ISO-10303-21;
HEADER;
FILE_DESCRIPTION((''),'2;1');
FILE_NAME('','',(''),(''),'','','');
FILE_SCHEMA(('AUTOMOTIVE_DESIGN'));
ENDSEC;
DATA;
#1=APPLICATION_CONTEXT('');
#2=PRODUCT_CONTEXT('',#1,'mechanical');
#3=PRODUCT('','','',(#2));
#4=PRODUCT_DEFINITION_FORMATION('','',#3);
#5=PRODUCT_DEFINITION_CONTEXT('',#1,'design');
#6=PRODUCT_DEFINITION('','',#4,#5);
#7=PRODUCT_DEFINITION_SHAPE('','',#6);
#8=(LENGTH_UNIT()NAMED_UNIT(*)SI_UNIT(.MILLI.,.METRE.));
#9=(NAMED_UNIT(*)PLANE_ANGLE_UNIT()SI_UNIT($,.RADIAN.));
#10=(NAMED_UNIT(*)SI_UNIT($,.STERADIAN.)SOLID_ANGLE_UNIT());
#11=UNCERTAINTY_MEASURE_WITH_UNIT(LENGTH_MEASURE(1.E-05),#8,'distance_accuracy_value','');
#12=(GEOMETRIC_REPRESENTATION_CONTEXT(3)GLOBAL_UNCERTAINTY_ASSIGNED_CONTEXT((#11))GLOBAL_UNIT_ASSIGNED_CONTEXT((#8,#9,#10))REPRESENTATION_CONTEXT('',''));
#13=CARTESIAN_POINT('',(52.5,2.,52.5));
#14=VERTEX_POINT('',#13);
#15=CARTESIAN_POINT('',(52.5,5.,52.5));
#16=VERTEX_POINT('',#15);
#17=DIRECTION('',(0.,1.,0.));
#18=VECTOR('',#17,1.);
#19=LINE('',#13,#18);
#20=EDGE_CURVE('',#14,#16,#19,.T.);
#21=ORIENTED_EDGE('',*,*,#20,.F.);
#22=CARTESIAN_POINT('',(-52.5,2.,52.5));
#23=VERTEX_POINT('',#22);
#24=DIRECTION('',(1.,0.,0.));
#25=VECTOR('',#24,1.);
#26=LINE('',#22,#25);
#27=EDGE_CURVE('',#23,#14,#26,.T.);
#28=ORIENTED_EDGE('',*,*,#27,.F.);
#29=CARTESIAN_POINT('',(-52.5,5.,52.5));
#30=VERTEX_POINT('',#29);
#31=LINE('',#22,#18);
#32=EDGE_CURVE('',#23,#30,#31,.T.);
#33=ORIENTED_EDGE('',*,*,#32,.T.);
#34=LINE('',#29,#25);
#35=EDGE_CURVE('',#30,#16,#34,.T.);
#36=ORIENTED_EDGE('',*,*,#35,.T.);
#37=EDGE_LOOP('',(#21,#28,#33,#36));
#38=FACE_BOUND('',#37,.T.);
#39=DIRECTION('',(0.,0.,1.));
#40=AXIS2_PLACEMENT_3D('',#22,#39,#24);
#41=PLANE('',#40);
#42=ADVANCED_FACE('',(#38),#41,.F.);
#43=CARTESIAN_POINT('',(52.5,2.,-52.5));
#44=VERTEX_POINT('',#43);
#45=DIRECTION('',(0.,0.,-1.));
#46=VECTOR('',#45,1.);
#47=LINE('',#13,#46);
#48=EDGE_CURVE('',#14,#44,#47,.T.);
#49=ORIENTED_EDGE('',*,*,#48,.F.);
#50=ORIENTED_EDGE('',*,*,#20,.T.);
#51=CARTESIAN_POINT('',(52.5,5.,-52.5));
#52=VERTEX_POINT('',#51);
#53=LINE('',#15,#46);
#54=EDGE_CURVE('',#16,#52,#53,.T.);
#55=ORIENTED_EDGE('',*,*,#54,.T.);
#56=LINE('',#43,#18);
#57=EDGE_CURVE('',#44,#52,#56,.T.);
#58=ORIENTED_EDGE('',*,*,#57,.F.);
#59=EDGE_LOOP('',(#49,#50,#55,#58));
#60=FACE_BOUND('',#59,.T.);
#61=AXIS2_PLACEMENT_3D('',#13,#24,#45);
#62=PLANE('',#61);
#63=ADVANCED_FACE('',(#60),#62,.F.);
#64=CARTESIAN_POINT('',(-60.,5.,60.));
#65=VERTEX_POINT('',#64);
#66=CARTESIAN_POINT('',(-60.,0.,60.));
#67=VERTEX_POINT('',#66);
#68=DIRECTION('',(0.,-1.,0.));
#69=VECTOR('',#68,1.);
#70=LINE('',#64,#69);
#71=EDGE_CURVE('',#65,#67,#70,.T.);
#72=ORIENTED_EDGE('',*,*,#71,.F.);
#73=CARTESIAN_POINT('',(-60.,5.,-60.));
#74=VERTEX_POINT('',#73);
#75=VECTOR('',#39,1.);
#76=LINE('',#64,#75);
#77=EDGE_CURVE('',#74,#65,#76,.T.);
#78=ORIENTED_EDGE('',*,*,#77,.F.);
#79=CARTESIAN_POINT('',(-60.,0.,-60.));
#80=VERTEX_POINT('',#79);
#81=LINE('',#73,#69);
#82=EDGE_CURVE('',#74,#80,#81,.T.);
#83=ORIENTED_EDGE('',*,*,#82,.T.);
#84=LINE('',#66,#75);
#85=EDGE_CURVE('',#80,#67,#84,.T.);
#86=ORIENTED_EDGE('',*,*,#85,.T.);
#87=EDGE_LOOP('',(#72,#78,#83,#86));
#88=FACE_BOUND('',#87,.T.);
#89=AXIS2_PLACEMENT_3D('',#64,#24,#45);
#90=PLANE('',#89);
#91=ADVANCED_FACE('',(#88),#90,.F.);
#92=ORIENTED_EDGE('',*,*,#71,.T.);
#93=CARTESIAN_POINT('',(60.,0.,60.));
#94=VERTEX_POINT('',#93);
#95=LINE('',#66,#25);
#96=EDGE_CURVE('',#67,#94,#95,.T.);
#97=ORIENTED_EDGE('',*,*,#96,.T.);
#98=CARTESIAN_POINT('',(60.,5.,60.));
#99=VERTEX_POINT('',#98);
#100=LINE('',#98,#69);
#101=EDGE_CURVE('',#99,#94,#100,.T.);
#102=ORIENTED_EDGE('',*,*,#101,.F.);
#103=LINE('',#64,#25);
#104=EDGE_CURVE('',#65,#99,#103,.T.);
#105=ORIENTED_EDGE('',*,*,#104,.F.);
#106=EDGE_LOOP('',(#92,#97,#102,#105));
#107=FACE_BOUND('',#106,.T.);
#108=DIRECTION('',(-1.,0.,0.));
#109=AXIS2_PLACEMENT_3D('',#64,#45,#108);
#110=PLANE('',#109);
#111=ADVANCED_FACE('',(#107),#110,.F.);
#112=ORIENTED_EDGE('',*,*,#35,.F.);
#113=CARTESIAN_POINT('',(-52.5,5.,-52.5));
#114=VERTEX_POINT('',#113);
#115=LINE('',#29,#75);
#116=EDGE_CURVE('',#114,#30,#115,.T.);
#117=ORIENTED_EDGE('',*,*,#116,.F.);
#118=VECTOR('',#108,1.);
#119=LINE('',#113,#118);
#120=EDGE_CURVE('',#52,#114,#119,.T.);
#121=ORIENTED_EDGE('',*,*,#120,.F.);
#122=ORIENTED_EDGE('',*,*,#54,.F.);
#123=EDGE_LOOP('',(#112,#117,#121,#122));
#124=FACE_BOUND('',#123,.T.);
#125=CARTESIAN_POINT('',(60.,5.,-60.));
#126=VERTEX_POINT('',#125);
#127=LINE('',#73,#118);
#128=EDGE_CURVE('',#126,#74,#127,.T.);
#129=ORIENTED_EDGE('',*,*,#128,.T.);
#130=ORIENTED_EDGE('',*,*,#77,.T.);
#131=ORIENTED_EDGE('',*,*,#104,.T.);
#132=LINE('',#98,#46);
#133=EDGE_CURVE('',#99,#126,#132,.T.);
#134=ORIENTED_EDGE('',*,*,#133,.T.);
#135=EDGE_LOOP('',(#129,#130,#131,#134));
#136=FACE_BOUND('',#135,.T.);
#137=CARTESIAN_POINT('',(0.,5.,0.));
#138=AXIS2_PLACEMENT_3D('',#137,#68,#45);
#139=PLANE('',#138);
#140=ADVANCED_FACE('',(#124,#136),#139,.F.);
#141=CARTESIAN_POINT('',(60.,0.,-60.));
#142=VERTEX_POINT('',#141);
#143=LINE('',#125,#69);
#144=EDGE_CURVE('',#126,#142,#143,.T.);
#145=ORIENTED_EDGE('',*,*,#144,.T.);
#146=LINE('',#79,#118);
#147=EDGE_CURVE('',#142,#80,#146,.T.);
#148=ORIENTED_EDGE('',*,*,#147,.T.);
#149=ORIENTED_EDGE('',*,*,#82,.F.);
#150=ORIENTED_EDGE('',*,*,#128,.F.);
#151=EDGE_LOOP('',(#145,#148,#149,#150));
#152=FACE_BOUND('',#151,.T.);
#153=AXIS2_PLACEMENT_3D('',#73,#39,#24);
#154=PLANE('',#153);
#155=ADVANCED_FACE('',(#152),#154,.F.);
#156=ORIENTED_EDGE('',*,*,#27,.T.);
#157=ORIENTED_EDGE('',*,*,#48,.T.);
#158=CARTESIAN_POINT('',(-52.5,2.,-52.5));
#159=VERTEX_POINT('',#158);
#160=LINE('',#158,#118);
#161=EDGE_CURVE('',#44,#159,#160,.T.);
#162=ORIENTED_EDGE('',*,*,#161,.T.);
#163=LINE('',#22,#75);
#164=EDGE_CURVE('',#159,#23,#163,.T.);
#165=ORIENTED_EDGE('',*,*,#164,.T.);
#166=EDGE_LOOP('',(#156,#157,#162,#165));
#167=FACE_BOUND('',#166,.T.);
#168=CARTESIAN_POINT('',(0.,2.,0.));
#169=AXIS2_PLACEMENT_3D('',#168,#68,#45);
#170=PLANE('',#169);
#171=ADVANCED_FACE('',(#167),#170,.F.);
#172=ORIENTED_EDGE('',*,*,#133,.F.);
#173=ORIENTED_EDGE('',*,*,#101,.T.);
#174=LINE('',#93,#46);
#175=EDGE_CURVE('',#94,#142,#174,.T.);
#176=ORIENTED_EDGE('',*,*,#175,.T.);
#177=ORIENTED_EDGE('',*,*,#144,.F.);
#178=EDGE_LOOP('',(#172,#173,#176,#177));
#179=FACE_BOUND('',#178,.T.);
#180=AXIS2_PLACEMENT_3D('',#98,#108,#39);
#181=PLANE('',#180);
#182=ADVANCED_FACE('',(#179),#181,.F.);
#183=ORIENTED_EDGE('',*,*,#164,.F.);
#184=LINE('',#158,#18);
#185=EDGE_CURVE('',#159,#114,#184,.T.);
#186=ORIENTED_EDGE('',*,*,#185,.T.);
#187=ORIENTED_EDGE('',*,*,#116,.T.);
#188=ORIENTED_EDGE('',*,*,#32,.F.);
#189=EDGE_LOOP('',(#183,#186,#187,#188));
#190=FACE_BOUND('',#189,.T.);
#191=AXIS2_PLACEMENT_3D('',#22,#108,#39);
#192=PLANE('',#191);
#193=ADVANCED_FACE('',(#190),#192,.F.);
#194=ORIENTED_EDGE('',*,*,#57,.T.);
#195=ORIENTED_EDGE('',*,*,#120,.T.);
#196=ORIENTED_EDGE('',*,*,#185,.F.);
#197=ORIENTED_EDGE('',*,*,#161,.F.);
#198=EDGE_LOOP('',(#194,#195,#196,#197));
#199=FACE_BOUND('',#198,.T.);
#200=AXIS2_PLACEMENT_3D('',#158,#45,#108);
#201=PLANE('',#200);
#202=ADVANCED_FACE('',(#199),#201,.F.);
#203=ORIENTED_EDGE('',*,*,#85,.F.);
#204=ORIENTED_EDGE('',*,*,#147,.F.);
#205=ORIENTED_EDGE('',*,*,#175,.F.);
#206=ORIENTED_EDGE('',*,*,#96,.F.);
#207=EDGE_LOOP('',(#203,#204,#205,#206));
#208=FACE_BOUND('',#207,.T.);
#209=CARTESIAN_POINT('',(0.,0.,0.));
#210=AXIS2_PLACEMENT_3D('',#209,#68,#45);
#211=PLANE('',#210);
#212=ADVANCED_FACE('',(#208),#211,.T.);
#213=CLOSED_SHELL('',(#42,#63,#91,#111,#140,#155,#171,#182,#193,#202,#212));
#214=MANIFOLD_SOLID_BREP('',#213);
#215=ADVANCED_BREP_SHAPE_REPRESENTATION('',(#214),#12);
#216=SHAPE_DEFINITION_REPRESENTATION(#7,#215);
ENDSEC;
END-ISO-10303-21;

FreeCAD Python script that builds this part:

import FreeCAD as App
import Part
import Sketcher
from FreeCAD import Vector


def add_polygon(sketch, points):
    """Adds a closed chain of lines whose ends are joined by coincident constraints."""
    first, n = sketch.GeometryCount, len(points)
    for a, b in zip(points, points[1:] + points[:1]):
        sketch.addGeometry(Part.LineSegment(App.Vector(*a, 0), App.Vector(*b, 0)), False)
    for i in range(n):
        sketch.addConstraint(Sketcher.Constraint("Coincident", first + i, 2, first + (i + 1) % n, 1))

doc = App.newDocument("Part")
body = doc.addObject("PartDesign::Body", "Body")

sketch1 = doc.addObject("Sketcher::SketchObject", "Sketch")
body.addObject(sketch1)
sketch1.AttachmentSupport = (doc.XZ_Plane, [""])
sketch1.MapMode = "FlatFace"
add_polygon(sketch1, [(-60, -60), (-60, 60), (60, 60), (60, -60)])
sketch1.addConstraint([
    Sketcher.Constraint("Vertical", 0),
    Sketcher.Constraint("Horizontal", 1),
    Sketcher.Constraint("Vertical", 2),
    Sketcher.Constraint("Horizontal", 3),
    Sketcher.Constraint("Symmetric", 0, 2, 2, 2, -1, 1),
    Sketcher.Constraint("Equal", 3, 0),
    Sketcher.Constraint("DistanceX", 1, 1, 1, 2, 120.0),
])
pad1 = doc.addObject("PartDesign::Pad", "Pad")
body.addObject(pad1)
pad1.Profile = sketch1
pad1.Length = 5
pad1.Reversed = True

sketch2 = doc.addObject("Sketcher::SketchObject", "Sketch001")
body.addObject(sketch2)
sketch2.AttachmentSupport = (doc.XZ_Plane, [""])
sketch2.MapMode = "FlatFace"
sketch2.AttachmentOffset = App.Placement(Vector(0, 0, -5), App.Rotation())
add_polygon(sketch2, [(-52, -52), (-52, 52), (52, 52), (52, -52)])
sketch2.addConstraint([
    Sketcher.Constraint("Vertical", 0),
    Sketcher.Constraint("Horizontal", 1),
    Sketcher.Constraint("Vertical", 2),
    Sketcher.Constraint("Horizontal", 3),
    Sketcher.Constraint("Symmetric", 0, 2, 2, 2, -1, 1),
    Sketcher.Constraint("Equal", 3, 0),
    Sketcher.Constraint("DistanceX", 1, 1, 1, 2, 105.0),
])
pocket1 = doc.addObject("PartDesign::Pocket", "Pocket")
body.addObject(pocket1)
pocket1.Profile = sketch2
pocket1.Length = 3
pocket1.Reversed = True

doc.recompute()
